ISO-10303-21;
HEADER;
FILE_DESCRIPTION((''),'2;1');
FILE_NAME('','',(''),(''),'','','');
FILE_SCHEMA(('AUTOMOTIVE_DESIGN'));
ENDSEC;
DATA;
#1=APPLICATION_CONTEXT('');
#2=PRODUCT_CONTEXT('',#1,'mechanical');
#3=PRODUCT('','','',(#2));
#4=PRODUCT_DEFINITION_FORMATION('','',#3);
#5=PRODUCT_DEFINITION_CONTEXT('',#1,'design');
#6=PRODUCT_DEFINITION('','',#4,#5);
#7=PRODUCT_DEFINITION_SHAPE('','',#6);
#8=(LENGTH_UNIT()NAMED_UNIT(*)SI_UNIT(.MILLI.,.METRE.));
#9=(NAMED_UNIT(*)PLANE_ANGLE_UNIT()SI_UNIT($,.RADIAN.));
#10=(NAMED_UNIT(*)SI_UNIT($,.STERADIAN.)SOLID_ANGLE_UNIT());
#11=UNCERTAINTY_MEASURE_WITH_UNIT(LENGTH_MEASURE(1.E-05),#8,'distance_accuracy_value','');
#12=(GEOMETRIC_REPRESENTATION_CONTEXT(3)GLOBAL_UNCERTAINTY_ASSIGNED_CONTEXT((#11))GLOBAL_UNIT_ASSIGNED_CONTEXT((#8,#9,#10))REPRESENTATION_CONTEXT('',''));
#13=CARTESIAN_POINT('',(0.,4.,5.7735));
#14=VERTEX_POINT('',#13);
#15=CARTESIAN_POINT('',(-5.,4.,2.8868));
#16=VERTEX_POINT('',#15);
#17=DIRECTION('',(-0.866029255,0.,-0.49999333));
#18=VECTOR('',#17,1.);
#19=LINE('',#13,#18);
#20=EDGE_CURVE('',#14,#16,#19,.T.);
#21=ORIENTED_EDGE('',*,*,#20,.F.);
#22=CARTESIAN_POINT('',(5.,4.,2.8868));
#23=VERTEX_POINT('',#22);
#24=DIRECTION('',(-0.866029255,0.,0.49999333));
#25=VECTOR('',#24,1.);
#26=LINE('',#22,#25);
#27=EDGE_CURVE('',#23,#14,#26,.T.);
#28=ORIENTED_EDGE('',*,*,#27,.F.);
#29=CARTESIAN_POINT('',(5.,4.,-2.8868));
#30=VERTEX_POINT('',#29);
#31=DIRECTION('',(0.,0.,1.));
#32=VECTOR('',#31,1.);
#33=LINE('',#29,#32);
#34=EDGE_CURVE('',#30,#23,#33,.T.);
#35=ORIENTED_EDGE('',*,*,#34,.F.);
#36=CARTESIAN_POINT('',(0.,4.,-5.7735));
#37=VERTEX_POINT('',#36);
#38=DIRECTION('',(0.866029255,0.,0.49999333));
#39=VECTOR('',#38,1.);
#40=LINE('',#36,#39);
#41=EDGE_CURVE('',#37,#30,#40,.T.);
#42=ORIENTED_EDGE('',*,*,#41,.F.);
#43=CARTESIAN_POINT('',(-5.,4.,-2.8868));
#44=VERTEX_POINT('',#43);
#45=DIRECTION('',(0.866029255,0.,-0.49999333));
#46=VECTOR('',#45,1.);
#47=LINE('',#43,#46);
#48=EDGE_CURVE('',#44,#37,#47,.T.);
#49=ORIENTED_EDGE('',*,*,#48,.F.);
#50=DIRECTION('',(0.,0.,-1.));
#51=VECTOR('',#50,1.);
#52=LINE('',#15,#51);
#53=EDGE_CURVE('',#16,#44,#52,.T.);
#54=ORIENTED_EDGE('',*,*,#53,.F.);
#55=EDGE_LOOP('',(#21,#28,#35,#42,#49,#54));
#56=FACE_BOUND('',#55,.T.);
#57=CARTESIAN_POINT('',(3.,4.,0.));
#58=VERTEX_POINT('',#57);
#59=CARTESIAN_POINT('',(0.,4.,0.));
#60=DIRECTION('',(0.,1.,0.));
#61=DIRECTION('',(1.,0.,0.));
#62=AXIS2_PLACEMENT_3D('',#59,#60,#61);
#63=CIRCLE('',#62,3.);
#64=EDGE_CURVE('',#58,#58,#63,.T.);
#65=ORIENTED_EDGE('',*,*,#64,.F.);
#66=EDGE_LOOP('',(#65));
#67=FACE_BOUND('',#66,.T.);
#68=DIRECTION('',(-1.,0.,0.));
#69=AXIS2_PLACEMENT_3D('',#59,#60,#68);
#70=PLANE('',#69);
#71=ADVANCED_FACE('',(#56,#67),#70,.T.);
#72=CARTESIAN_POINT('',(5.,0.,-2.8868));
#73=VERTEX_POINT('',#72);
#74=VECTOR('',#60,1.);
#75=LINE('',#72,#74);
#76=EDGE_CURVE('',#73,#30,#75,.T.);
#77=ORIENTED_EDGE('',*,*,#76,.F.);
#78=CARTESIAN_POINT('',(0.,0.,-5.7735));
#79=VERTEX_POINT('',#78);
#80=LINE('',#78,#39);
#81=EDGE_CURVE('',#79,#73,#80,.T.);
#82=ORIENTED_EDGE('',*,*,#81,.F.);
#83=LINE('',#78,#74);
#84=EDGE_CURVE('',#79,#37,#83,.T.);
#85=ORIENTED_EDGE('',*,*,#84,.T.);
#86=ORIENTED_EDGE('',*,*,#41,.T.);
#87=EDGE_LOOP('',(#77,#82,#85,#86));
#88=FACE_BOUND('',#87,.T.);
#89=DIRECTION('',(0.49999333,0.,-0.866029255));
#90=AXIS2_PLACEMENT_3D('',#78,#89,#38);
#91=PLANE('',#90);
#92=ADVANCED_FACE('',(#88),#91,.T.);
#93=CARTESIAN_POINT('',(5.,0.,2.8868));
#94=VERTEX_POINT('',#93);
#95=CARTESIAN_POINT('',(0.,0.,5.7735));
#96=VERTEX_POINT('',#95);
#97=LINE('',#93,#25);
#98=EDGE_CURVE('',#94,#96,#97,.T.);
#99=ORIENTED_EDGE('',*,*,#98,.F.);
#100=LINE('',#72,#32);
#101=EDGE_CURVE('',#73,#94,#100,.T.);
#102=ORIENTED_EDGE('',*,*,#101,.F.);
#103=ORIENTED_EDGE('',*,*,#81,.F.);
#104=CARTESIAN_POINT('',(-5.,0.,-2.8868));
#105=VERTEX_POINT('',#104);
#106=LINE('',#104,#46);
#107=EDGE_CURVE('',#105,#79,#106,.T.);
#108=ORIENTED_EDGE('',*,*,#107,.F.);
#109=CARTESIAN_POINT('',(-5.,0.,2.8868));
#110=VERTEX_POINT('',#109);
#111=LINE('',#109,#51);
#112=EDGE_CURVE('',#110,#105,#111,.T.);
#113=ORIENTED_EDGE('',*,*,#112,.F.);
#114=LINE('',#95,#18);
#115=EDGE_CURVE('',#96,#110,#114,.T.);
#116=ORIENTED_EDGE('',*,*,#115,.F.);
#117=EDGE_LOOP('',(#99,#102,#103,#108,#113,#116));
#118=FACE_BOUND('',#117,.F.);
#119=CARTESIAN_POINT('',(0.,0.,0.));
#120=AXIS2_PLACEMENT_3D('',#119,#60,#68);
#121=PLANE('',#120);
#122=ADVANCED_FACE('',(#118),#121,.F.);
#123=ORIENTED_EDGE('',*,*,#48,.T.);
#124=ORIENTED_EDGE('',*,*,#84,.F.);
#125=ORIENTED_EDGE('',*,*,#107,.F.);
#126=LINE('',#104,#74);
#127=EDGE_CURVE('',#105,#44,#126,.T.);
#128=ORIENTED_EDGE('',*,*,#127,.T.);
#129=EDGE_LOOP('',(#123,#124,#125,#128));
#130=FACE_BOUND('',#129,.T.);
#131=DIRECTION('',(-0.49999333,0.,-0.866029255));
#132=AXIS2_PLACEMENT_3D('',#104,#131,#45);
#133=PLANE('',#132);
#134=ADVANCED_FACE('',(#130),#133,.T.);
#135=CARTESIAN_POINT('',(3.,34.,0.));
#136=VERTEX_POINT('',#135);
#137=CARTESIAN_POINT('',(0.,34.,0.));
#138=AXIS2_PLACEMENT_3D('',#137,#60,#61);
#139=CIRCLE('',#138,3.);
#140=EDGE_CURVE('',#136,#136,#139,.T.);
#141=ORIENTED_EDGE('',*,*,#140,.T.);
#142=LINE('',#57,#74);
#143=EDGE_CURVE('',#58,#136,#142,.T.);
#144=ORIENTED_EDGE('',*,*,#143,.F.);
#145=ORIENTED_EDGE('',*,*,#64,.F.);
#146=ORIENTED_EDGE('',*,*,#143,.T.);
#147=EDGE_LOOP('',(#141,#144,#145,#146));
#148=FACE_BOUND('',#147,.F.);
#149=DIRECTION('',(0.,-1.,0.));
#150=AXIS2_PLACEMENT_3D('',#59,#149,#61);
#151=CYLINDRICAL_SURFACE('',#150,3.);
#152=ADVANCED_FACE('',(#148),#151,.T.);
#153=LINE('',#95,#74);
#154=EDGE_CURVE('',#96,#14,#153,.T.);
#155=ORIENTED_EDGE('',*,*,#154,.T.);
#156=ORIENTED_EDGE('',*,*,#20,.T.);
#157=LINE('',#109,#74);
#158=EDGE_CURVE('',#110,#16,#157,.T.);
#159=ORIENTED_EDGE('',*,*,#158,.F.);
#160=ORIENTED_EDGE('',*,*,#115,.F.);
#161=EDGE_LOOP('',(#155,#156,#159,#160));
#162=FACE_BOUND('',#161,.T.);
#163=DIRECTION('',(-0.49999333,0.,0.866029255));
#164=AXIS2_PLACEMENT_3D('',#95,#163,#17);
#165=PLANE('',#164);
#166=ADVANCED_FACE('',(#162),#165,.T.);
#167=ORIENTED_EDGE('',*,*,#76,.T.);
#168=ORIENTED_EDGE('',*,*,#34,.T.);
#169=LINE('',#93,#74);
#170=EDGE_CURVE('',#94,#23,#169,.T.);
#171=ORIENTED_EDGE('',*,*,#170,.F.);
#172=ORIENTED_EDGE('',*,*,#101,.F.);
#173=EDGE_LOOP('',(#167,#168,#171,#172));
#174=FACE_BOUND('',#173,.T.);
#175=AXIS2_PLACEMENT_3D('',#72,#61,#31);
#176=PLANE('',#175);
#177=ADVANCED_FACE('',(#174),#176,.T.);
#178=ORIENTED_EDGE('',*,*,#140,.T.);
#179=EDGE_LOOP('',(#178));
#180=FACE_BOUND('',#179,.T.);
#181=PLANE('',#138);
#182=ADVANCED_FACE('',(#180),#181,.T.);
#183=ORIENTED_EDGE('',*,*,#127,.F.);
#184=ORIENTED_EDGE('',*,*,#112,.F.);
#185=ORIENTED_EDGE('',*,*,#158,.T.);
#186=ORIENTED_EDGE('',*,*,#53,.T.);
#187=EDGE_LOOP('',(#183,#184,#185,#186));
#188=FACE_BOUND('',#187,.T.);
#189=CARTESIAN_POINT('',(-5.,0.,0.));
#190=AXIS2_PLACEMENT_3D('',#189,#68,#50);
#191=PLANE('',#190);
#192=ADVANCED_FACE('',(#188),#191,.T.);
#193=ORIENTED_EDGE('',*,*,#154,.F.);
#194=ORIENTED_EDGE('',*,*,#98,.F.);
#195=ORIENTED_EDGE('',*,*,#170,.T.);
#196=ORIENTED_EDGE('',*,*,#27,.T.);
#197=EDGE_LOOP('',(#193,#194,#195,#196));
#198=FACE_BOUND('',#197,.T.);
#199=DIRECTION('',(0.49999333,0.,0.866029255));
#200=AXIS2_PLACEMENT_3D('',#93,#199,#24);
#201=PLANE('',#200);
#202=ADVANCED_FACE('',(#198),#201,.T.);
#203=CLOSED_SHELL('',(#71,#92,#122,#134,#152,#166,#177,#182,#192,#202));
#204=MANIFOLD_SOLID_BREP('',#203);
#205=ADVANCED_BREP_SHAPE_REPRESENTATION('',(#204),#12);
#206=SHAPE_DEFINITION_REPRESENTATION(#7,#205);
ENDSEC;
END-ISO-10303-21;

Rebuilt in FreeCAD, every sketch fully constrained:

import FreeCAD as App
import Part
import Sketcher

V = App.Vector
Q = App.Units.Quantity


def add_polygon(sketch, points):
    """Adds a closed chain of lines whose ends are joined by coincident constraints."""
    first, n = sketch.GeometryCount, len(points)
    for a, b in zip(points, points[1:] + points[:1]):
        sketch.addGeometry(Part.LineSegment(App.Vector(*a, 0), App.Vector(*b, 0)), False)
    for i in range(n):
        sketch.addConstraint(Sketcher.Constraint("Coincident", first + i, 2, first + (i + 1) % n, 1))

doc = App.newDocument("Part")
body = doc.addObject("PartDesign::Body", "Body")

sketch1 = body.newObject("Sketcher::SketchObject", "Sketch")
sketch1.AttachmentSupport = (doc.getObject("XZ_Plane"), [""])
sketch1.MapMode = "FlatFace"
add_polygon(sketch1, [(-5, -3), (-5, 3), (0, 6), (5, 3), (5, -3), (0, -6)])
sketch1.addConstraint([
    Sketcher.Constraint("Vertical", 0),
    Sketcher.Constraint("Vertical", 3),
    Sketcher.Constraint("Symmetric", 0, 2, 3, 2, -1, 1),
    Sketcher.Constraint("Symmetric", 1, 2, 4, 2, -1, 1),
    Sketcher.Constraint("PointOnObject", 1, 2, -2),
    Sketcher.Constraint("Parallel", 2, 5),
    Sketcher.Constraint("Horizontal", 0, 2, 2, 2),
    Sketcher.Constraint("DistanceX", 0, 2, 2, 2, Q("10 mm")),
    Sketcher.Constraint("Angle", 1, Q("29.9996 deg")),
    Sketcher.Constraint("DistanceY", 0, 1, 0, 2, Q("5.7736 mm")),
])
pad1 = body.newObject("PartDesign::Pad", "Pad")
pad1.Profile = sketch1
pad1.Length = 4
pad1.Reversed = True

sketch2 = body.newObject("Sketcher::SketchObject", "Sketch001")
sketch2.AttachmentSupport = (doc.getObject("XZ_Plane"), [""])
sketch2.MapMode = "FlatFace"
sketch2.AttachmentOffset = App.Placement(V(0, 0, -4), App.Rotation())
sketch2.addGeometry(Part.Circle(V(0, 0, 0), V(0, 0, 1), 3), False)
sketch2.addConstraint([
    Sketcher.Constraint("Coincident", 0, 3, -1, 1),
    Sketcher.Constraint("Diameter", 0, Q("6 mm")),
])
pad2 = body.newObject("PartDesign::Pad", "Pad001")
pad2.Profile = sketch2
pad2.Length = 30
pad2.Reversed = True

doc.recompute()
